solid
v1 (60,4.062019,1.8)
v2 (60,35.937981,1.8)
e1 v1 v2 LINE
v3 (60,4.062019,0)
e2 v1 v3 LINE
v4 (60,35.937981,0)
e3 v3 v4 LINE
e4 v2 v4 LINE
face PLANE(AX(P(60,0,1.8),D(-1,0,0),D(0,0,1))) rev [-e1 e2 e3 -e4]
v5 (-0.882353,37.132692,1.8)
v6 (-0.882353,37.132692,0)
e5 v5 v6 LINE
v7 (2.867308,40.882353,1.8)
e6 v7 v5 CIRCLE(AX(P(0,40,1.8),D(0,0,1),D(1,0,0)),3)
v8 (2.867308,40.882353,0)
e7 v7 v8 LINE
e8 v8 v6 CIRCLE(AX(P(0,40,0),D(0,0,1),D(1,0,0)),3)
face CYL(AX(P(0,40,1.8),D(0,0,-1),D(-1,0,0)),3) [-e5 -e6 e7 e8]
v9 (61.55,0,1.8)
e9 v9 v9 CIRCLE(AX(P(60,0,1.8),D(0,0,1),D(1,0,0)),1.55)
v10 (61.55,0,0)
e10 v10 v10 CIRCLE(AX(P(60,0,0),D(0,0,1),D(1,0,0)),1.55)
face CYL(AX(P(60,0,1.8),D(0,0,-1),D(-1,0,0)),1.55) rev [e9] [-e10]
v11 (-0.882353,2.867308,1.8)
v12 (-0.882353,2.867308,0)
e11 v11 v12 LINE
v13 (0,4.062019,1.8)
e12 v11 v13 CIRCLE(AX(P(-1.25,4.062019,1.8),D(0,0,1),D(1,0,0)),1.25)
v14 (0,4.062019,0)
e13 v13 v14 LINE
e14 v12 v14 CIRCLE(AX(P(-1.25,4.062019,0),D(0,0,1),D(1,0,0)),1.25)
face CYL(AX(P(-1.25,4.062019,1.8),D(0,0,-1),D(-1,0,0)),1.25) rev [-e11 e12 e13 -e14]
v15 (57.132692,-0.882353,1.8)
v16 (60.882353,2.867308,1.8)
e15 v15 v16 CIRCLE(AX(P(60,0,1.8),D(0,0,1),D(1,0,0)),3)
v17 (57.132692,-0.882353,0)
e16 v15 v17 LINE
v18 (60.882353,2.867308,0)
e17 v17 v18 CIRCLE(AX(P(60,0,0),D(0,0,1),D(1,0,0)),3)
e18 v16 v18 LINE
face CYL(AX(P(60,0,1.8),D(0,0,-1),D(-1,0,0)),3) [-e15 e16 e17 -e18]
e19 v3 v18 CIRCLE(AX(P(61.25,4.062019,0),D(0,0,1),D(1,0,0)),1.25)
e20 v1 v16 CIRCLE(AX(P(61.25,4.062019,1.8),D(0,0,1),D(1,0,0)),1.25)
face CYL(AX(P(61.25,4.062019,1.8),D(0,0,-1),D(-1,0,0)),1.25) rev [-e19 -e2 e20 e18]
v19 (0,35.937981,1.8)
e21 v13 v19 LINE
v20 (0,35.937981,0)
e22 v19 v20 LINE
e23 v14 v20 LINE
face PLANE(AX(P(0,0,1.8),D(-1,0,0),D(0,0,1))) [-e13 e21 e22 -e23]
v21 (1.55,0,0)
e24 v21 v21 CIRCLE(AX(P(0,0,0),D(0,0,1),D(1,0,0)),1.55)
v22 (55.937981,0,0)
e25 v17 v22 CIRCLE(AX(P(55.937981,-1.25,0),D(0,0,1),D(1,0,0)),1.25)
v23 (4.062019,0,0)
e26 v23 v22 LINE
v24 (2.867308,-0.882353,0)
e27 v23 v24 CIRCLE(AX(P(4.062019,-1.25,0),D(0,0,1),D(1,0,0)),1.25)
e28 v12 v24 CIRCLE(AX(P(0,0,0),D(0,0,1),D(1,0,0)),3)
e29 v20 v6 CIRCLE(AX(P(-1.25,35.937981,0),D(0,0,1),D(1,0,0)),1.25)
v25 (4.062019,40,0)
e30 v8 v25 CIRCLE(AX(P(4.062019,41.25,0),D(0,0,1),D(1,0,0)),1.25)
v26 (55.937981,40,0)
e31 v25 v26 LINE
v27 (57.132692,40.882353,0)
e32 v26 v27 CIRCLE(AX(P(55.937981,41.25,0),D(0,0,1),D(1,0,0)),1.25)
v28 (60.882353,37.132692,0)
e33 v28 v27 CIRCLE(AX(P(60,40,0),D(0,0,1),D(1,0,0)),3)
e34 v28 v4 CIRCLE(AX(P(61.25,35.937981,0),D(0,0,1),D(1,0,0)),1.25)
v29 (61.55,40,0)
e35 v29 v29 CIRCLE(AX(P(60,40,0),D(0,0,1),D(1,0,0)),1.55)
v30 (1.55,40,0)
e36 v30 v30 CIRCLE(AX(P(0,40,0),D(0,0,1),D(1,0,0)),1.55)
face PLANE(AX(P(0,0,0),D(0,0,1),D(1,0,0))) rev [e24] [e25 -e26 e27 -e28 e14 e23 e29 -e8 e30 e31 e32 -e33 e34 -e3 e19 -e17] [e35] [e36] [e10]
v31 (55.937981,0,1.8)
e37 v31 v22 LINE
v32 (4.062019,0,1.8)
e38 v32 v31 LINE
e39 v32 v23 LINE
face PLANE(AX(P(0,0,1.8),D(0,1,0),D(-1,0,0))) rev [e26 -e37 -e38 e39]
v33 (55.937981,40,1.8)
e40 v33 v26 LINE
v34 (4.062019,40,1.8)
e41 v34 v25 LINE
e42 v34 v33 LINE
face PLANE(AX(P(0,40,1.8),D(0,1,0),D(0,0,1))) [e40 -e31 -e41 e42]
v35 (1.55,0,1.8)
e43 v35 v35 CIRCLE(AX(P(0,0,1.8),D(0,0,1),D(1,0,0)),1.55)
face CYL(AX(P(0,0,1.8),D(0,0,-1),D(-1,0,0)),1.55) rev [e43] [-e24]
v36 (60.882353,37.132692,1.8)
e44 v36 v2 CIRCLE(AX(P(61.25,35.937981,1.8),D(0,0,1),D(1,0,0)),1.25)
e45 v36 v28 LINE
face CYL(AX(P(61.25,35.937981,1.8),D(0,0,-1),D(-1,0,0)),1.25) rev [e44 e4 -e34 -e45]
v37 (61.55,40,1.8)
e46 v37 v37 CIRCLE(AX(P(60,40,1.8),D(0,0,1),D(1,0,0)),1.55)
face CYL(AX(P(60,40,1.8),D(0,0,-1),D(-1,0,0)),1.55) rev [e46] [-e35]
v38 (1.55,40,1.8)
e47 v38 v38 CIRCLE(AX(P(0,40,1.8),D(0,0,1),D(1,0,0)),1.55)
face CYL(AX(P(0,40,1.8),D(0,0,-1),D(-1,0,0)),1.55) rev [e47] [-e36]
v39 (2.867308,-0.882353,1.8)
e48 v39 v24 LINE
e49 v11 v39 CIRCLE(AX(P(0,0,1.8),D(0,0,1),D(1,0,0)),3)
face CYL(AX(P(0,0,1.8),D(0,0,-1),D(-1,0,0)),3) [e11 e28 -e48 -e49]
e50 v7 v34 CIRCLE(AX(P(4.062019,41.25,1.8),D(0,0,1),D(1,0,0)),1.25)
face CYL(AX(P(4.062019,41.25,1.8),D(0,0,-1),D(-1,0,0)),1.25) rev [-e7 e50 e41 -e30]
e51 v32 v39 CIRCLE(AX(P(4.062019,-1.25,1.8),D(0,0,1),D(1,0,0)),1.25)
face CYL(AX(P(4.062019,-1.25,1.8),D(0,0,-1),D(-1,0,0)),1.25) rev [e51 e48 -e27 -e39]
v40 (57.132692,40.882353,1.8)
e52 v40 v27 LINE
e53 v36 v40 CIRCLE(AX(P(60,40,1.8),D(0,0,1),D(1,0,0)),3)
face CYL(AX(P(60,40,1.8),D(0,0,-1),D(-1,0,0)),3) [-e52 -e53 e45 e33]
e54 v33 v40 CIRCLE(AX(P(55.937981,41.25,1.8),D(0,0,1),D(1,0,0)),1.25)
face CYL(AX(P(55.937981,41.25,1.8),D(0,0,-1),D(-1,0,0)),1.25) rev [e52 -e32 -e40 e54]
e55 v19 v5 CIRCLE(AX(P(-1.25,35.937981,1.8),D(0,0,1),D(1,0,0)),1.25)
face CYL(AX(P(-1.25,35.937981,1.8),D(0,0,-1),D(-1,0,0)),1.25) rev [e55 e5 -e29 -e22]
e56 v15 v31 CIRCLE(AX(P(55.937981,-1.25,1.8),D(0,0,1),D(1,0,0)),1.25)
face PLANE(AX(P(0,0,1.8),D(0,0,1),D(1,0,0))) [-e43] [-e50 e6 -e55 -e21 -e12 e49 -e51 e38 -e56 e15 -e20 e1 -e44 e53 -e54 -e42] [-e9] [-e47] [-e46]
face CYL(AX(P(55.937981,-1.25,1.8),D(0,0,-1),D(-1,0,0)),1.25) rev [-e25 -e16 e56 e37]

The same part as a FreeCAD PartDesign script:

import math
import FreeCAD as App
import Part
import Sketcher
Q = App.Units.Quantity

doc = App.newDocument("Part")
body = doc.addObject("PartDesign::Body", "Body")

# Sketch on XY plane
sketch1 = doc.addObject("Sketcher::SketchObject", "Sketch")
body.addObject(sketch1)
sketch1.AttachmentSupport = (doc.XY_Plane, [""])
sketch1.MapMode = "FlatFace"
sketch1.addGeometry(Part.ArcOfCircle(Part.Circle(App.Vector(-1.25, 35.937981, 0), App.Vector(0, 0, 1), 1.25), math.radians(0), math.radians(72.895365)), False)
sketch1.addGeometry(Part.LineSegment(App.Vector(0, 35.937981, 0), App.Vector(0, 4.062019, 0)), False)
sketch1.addGeometry(Part.ArcOfCircle(Part.Circle(App.Vector(-1.25, 4.062019, 0), App.Vector(0, 0, 1), 1.25), math.radians(-72.895365), math.radians(0)), False)
sketch1.addGeometry(Part.ArcOfCircle(Part.Circle(App.Vector(0, 0, 0), App.Vector(0, 0, 1), 3), math.radians(107.104635), math.radians(342.895365)), False)
sketch1.addGeometry(Part.ArcOfCircle(Part.Circle(App.Vector(4.062019, -1.25, 0), App.Vector(0, 0, 1), 1.25), math.radians(90), math.radians(162.895365)), False)
sketch1.addGeometry(Part.LineSegment(App.Vector(4.062019, 0, 0), App.Vector(55.937981, 0, 0)), False)
sketch1.addGeometry(Part.ArcOfCircle(Part.Circle(App.Vector(55.937981, -1.25, 0), App.Vector(0, 0, 1), 1.25), math.radians(17.104635), math.radians(90)), False)
sketch1.addGeometry(Part.ArcOfCircle(Part.Circle(App.Vector(60, 0, 0), App.Vector(0, 0, 1), 3), math.radians(-162.895365), math.radians(72.895365)), False)
sketch1.addGeometry(Part.ArcOfCircle(Part.Circle(App.Vector(61.25, 4.062019, 0), App.Vector(0, 0, 1), 1.25), math.radians(-180), math.radians(-107.104635)), False)
sketch1.addGeometry(Part.LineSegment(App.Vector(60, 4.062019, 0), App.Vector(60, 35.937981, 0)), False)
sketch1.addGeometry(Part.ArcOfCircle(Part.Circle(App.Vector(61.25, 35.937981, 0), App.Vector(0, 0, 1), 1.25), math.radians(107.104635), math.radians(180)), False)
sketch1.addGeometry(Part.ArcOfCircle(Part.Circle(App.Vector(60, 40, 0), App.Vector(0, 0, 1), 3), math.radians(-72.895365), math.radians(162.895365)), False)
sketch1.addGeometry(Part.ArcOfCircle(Part.Circle(App.Vector(55.937981, 41.25, 0), App.Vector(0, 0, 1), 1.25), math.radians(-90), math.radians(-17.104635)), False)
sketch1.addGeometry(Part.LineSegment(App.Vector(55.937981, 40, 0), App.Vector(4.062019, 40, 0)), False)
sketch1.addGeometry(Part.ArcOfCircle(Part.Circle(App.Vector(4.062019, 41.25, 0), App.Vector(0, 0, 1), 1.25), math.radians(-162.895365), math.radians(-90)), False)
sketch1.addGeometry(Part.ArcOfCircle(Part.Circle(App.Vector(0, 40, 0), App.Vector(0, 0, 1), 3), math.radians(17.104635), math.radians(252.895365)), False)
sketch1.addGeometry(Part.Circle(App.Vector(60, 0, 0), App.Vector(0, 0, 1), 1.55), False)
sketch1.addGeometry(Part.Circle(App.Vector(0, 0, 0), App.Vector(0, 0, 1), 1.55), False)
sketch1.addGeometry(Part.Circle(App.Vector(60, 40, 0), App.Vector(0, 0, 1), 1.55), False)
sketch1.addGeometry(Part.Circle(App.Vector(0, 40, 0), App.Vector(0, 0, 1), 1.55), False)
sketch1.addConstraint(Sketcher.Constraint("Tangent", 0, 1, 1, 1))
sketch1.addConstraint(Sketcher.Constraint("Tangent", 1, 2, 2, 2))
sketch1.addConstraint(Sketcher.Constraint("Tangent", 2, 1, 3, 1))
sketch1.addConstraint(Sketcher.Constraint("Tangent", 3, 2, 4, 2))
sketch1.addConstraint(Sketcher.Constraint("Tangent", 4, 1, 5, 1))
sketch1.addConstraint(Sketcher.Constraint("Tangent", 5, 2, 6, 2))
sketch1.addConstraint(Sketcher.Constraint("Tangent", 6, 1, 7, 1))
sketch1.addConstraint(Sketcher.Constraint("Tangent", 7, 2, 8, 2))
sketch1.addConstraint(Sketcher.Constraint("Tangent", 8, 1, 9, 1))
sketch1.addConstraint(Sketcher.Constraint("Tangent", 9, 2, 10, 2))
sketch1.addConstraint(Sketcher.Constraint("Tangent", 10, 1, 11, 1))
sketch1.addConstraint(Sketcher.Constraint("Tangent", 11, 2, 12, 2))
sketch1.addConstraint(Sketcher.Constraint("Tangent", 12, 1, 13, 1))
sketch1.addConstraint(Sketcher.Constraint("Tangent", 13, 2, 14, 2))
sketch1.addConstraint(Sketcher.Constraint("Tangent", 14, 1, 15, 1))
sketch1.addConstraint(Sketcher.Constraint("Tangent", 15, 2, 0, 2))
sketch1.addConstraint(Sketcher.Constraint("Vertical", 1))
sketch1.addConstraint(Sketcher.Constraint("Horizontal", 5))
sketch1.addConstraint(Sketcher.Constraint("Vertical", 9))
sketch1.addConstraint(Sketcher.Constraint("Horizontal", 13))
sketch1.addConstraint(Sketcher.Constraint("Coincident", 3, 3, -1, 1))
sketch1.addConstraint(Sketcher.Constraint("Coincident", 17, 3, -1, 1))
sketch1.addConstraint(Sketcher.Constraint("Coincident", 16, 3, 7, 3))
sketch1.addConstraint(Sketcher.Constraint("Coincident", 18, 3, 11, 3))
sketch1.addConstraint(Sketcher.Constraint("Coincident", 19, 3, 15, 3))
sketch1.addConstraint(Sketcher.Constraint("Equal", 0, 2))
sketch1.addConstraint(Sketcher.Constraint("Equal", 2, 4))
sketch1.addConstraint(Sketcher.Constraint("Equal", 4, 6))
sketch1.addConstraint(Sketcher.Constraint("Equal", 3, 7))
sketch1.addConstraint(Sketcher.Constraint("Equal", 6, 8))
sketch1.addConstraint(Sketcher.Constraint("Equal", 8, 10))
sketch1.addConstraint(Sketcher.Constraint("Equal", 7, 11))
sketch1.addConstraint(Sketcher.Constraint("Equal", 10, 12))
sketch1.addConstraint(Sketcher.Constraint("Equal", 12, 14))
sketch1.addConstraint(Sketcher.Constraint("Equal", 11, 15))
sketch1.addConstraint(Sketcher.Constraint("Equal", 16, 17))
sketch1.addConstraint(Sketcher.Constraint("Equal", 17, 18))
sketch1.addConstraint(Sketcher.Constraint("Equal", 18, 19))
sketch1.addConstraint(Sketcher.Constraint("PointOnObject", 7, 3, -1))
sketch1.addConstraint(Sketcher.Constraint("PointOnObject", 15, 3, -2))
sketch1.addConstraint(Sketcher.Constraint("PointOnObject", 0, 1, -2))
sketch1.addConstraint(Sketcher.Constraint("PointOnObject", 4, 1, -1))
sketch1.addConstraint(Sketcher.Constraint("Horizontal", 2, 3, 8, 3))
sketch1.addConstraint(Sketcher.Constraint("Horizontal", 0, 3, 10, 3))
sketch1.addConstraint(Sketcher.Constraint("Horizontal", 11, 3, 15, 3))
sketch1.addConstraint(Sketcher.Constraint("Horizontal", 19, 3, 12, 1))
sketch1.addConstraint(Sketcher.Constraint("Radius", 3, Q("3 mm")))
sketch1.addConstraint(Sketcher.Constraint("Diameter", 16, Q("3.1 mm")))
sketch1.addConstraint(Sketcher.Constraint("Radius", 0, Q("1.25 mm")))
sketch1.addConstraint(Sketcher.Constraint("DistanceX", -1, 1, 7, 3, Q("60 mm")))
sketch1.addConstraint(Sketcher.Constraint("DistanceY", -1, 1, 11, 3, Q("40 mm")))
pad1 = doc.addObject("PartDesign::Pad", "Pad")
body.addObject(pad1)
pad1.Profile = sketch1
pad1.Length = 1.8

doc.recompute()
